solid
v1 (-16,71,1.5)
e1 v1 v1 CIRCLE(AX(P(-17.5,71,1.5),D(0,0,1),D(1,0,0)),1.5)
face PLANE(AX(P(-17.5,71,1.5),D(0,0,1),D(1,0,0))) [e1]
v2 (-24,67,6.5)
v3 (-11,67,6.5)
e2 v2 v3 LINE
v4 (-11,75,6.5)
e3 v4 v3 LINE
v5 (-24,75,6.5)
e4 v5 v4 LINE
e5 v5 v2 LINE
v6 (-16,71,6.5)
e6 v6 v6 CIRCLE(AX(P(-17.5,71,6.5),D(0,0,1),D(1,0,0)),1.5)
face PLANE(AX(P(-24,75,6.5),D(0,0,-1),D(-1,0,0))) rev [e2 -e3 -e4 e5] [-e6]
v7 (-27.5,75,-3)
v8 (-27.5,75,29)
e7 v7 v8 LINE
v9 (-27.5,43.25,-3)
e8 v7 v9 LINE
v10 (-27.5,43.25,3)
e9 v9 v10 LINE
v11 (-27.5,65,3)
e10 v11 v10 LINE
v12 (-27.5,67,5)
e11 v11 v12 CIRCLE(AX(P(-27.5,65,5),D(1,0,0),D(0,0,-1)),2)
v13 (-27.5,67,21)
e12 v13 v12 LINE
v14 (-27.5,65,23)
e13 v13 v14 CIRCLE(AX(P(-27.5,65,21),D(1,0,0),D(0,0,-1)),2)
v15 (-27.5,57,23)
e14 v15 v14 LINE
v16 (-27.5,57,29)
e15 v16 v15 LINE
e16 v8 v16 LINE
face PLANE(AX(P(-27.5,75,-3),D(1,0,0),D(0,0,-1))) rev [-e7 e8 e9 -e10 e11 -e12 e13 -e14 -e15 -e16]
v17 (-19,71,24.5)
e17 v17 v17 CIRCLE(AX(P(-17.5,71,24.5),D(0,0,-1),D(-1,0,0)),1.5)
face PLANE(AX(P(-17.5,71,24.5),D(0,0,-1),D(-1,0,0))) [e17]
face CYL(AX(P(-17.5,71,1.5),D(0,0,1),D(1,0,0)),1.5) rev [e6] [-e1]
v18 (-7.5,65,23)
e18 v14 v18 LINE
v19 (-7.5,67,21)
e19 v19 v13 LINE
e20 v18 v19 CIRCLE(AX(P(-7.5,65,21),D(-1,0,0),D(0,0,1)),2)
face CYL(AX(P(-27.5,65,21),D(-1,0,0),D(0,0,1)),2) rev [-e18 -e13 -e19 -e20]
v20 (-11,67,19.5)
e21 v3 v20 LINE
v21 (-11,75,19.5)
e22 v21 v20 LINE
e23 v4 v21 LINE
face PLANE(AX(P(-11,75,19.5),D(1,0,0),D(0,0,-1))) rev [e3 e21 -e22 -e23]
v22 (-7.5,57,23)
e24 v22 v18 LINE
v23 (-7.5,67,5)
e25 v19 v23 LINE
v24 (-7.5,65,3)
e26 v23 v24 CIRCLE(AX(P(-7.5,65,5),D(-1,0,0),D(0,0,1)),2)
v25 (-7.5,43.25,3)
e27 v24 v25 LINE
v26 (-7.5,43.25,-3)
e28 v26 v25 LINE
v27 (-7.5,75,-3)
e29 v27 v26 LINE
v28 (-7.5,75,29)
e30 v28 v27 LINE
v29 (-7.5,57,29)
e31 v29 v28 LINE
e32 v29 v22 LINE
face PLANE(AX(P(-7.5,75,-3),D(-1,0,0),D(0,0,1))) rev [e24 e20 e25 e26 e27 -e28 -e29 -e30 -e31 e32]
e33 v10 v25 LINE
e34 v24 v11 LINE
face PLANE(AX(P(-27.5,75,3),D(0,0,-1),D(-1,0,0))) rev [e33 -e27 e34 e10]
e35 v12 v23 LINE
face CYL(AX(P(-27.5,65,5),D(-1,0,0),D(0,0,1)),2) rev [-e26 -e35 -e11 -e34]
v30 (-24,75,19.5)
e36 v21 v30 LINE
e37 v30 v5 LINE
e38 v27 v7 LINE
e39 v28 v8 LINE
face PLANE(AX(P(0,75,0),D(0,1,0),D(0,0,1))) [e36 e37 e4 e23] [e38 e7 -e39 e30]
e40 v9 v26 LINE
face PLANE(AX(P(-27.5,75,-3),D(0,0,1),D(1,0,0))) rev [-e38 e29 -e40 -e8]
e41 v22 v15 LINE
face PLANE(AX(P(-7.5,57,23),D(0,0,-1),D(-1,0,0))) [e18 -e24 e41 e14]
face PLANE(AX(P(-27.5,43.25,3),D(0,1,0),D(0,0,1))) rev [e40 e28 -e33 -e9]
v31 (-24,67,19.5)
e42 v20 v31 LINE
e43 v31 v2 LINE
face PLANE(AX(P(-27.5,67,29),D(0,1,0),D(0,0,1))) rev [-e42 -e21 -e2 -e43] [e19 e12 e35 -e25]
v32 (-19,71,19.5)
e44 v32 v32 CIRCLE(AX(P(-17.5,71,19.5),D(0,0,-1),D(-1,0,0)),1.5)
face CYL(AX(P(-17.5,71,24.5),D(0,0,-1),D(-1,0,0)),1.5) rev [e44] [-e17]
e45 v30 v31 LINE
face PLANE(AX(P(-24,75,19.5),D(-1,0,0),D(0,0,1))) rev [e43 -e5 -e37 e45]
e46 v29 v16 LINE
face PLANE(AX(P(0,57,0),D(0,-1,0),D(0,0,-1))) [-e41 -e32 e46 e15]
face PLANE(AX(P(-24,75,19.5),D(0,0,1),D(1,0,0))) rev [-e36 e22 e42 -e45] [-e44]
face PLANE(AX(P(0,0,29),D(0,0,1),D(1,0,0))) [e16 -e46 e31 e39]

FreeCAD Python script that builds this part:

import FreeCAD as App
import Part
import Sketcher
Q = App.Units.Quantity


def edges_at(feature, points):
    """Names of the edges that pass closest to the given points."""
    edges = feature.Shape.Edges
    near = lambda p: min(range(len(edges)), key=lambda i: edges[i].distToShape(Part.Vertex(*p))[0])
    return sorted({f"Edge{near(p) + 1}" for p in points})

doc = App.newDocument("Part")
body = doc.addObject("PartDesign::Body", "Body")

sketch1 = doc.addObject("Sketcher::SketchObject", "Sketch")
body.addObject(sketch1)
sketch1.AttachmentSupport = (doc.XZ_Plane, [""])
sketch1.MapMode = "FlatFace"
sketch1.addGeometry(Part.LineSegment(App.Vector(-27.5, -3, 0), App.Vector(-27.5, 3, 0)), False)
sketch1.addGeometry(Part.LineSegment(App.Vector(-27.5, 3, 0), App.Vector(-7.5, 3, 0)), False)
sketch1.addGeometry(Part.LineSegment(App.Vector(-7.5, 3, 0), App.Vector(-7.5, -3, 0)), False)
sketch1.addGeometry(Part.LineSegment(App.Vector(-7.5, -3, 0), App.Vector(-27.5, -3, 0)), False)
sketch1.addConstraint(Sketcher.Constraint("Coincident", 0, 2, 1, 1))
sketch1.addConstraint(Sketcher.Constraint("Coincident", 1, 2, 2, 1))
sketch1.addConstraint(Sketcher.Constraint("Coincident", 2, 2, 3, 1))
sketch1.addConstraint(Sketcher.Constraint("Coincident", 3, 2, 0, 1))
sketch1.addConstraint(Sketcher.Constraint("Vertical", 0))
sketch1.addConstraint(Sketcher.Constraint("Horizontal", 1))
sketch1.addConstraint(Sketcher.Constraint("Vertical", 2))
sketch1.addConstraint(Sketcher.Constraint("Horizontal", 3))
sketch1.addConstraint(Sketcher.Constraint("DistanceX", 1, 1, 1, 2, Q("20 mm")))
sketch1.addConstraint(Sketcher.Constraint("DistanceY", 0, 1, 0, 2, Q("6 mm")))
sketch1.addConstraint(Sketcher.Constraint("DistanceY", -1, 1, 0, 2, Q("3 mm")))
sketch1.addConstraint(Sketcher.Constraint("DistanceX", 0, 2, -1, 1, Q("27.5 mm")))
pad1 = doc.addObject("PartDesign::Pad", "Pad")
body.addObject(pad1)
pad1.Profile = sketch1
pad1.Length = 75
pad1.Reversed = True

sketch2 = doc.addObject("Sketcher::SketchObject", "Sketch001")
body.addObject(sketch2)
sketch2.AttachmentSupport = (doc.XY_Plane, [""])
sketch2.MapMode = "FlatFace"
sketch2.AttachmentOffset = App.Placement(App.Vector(0, 0, 3), App.Rotation())
sketch2.addGeometry(Part.LineSegment(App.Vector(-27.5, 75, 0), App.Vector(-27.5, 67, 0)), False)
sketch2.addGeometry(Part.LineSegment(App.Vector(-27.5, 67, 0), App.Vector(-7.5, 67, 0)), False)
sketch2.addGeometry(Part.LineSegment(App.Vector(-7.5, 67, 0), App.Vector(-7.5, 75, 0)), False)
sketch2.addGeometry(Part.LineSegment(App.Vector(-7.5, 75, 0), App.Vector(-27.5, 75, 0)), False)
sketch2.addConstraint(Sketcher.Constraint("Coincident", 0, 2, 1, 1))
sketch2.addConstraint(Sketcher.Constraint("Coincident", 1, 2, 2, 1))
sketch2.addConstraint(Sketcher.Constraint("Coincident", 2, 2, 3, 1))
sketch2.addConstraint(Sketcher.Constraint("Coincident", 3, 2, 0, 1))
sketch2.addConstraint(Sketcher.Constraint("Vertical", 0))
sketch2.addConstraint(Sketcher.Constraint("Horizontal", 1))
sketch2.addConstraint(Sketcher.Constraint("Vertical", 2))
sketch2.addConstraint(Sketcher.Constraint("Horizontal", 3))
sketch2.addConstraint(Sketcher.Constraint("DistanceX", 1, 1, 1, 2, Q("20 mm")))
sketch2.addConstraint(Sketcher.Constraint("DistanceY", 0, 2, 0, 1, Q("8 mm")))
sketch2.addConstraint(Sketcher.Constraint("DistanceY", -1, 1, 0, 2, Q("67 mm")))
sketch2.addConstraint(Sketcher.Constraint("DistanceX", 0, 2, -1, 1, Q("27.5 mm")))
pad2 = doc.addObject("PartDesign::Pad", "Pad001")
body.addObject(pad2)
pad2.Profile = sketch2
pad2.Length = 26

sketch3 = doc.addObject("Sketcher::SketchObject", "Sketch002")
body.addObject(sketch3)
sketch3.AttachmentSupport = (doc.XZ_Plane, [""])
sketch3.MapMode = "FlatFace"
sketch3.AttachmentOffset = App.Placement(App.Vector(0, 0, -67), App.Rotation())
sketch3.addGeometry(Part.LineSegment(App.Vector(-27.5, 29, 0), App.Vector(-27.5, 23, 0)), False)
sketch3.addGeometry(Part.LineSegment(App.Vector(-27.5, 23, 0), App.Vector(-7.5, 23, 0)), False)
sketch3.addGeometry(Part.LineSegment(App.Vector(-7.5, 23, 0), App.Vector(-7.5, 29, 0)), False)
sketch3.addGeometry(Part.LineSegment(App.Vector(-7.5, 29, 0), App.Vector(-27.5, 29, 0)), False)
sketch3.addConstraint(Sketcher.Constraint("Coincident", 0, 2, 1, 1))
sketch3.addConstraint(Sketcher.Constraint("Coincident", 1, 2, 2, 1))
sketch3.addConstraint(Sketcher.Constraint("Coincident", 2, 2, 3, 1))
sketch3.addConstraint(Sketcher.Constraint("Coincident", 3, 2, 0, 1))
sketch3.addConstraint(Sketcher.Constraint("Vertical", 0))
sketch3.addConstraint(Sketcher.Constraint("Horizontal", 1))
sketch3.addConstraint(Sketcher.Constraint("Vertical", 2))
sketch3.addConstraint(Sketcher.Constraint("Horizontal", 3))
sketch3.addConstraint(Sketcher.Constraint("DistanceX", 1, 1, 1, 2, Q("20 mm")))
sketch3.addConstraint(Sketcher.Constraint("DistanceY", 0, 2, 0, 1, Q("6 mm")))
sketch3.addConstraint(Sketcher.Constraint("DistanceY", -1, 1, 0, 2, Q("23 mm")))
sketch3.addConstraint(Sketcher.Constraint("DistanceX", 0, 2, -1, 1, Q("27.5 mm")))
pad3 = doc.addObject("PartDesign::Pad", "Pad002")
body.addObject(pad3)
pad3.Profile = sketch3
pad3.Length = 10

sketch4 = doc.addObject("Sketcher::SketchObject", "Sketch003")
body.addObject(sketch4)
sketch4.AttachmentSupport = (doc.XZ_Plane, [""])
sketch4.MapMode = "FlatFace"
sketch4.AttachmentOffset = App.Placement(App.Vector(0, 0, -67), App.Rotation())
sketch4.addGeometry(Part.LineSegment(App.Vector(-24, 19.5, 0), App.Vector(-24, 6.5, 0)), False)
sketch4.addGeometry(Part.LineSegment(App.Vector(-24, 6.5, 0), App.Vector(-11, 6.5, 0)), False)
sketch4.addGeometry(Part.LineSegment(App.Vector(-11, 6.5, 0), App.Vector(-11, 19.5, 0)), False)
sketch4.addGeometry(Part.LineSegment(App.Vector(-11, 19.5, 0), App.Vector(-24, 19.5, 0)), False)
sketch4.addConstraint(Sketcher.Constraint("Coincident", 0, 2, 1, 1))
sketch4.addConstraint(Sketcher.Constraint("Coincident", 1, 2, 2, 1))
sketch4.addConstraint(Sketcher.Constraint("Coincident", 2, 2, 3, 1))
sketch4.addConstraint(Sketcher.Constraint("Coincident", 3, 2, 0, 1))
sketch4.addConstraint(Sketcher.Constraint("Vertical", 0))
sketch4.addConstraint(Sketcher.Constraint("Horizontal", 1))
sketch4.addConstraint(Sketcher.Constraint("Vertical", 2))
sketch4.addConstraint(Sketcher.Constraint("Horizontal", 3))
sketch4.addConstraint(Sketcher.Constraint("Equal", 3, 0))
sketch4.addConstraint(Sketcher.Constraint("DistanceX", 1, 1, 1, 2, Q("13 mm")))
sketch4.addConstraint(Sketcher.Constraint("DistanceX", 0, 2, -1, 1, Q("24 mm")))
sketch4.addConstraint(Sketcher.Constraint("DistanceY", -1, 1, 0, 2, Q("6.5 mm")))
pocket1 = doc.addObject("PartDesign::Pocket", "Pocket")
body.addObject(pocket1)
pocket1.Profile = sketch4
pocket1.Type = "ThroughAll"

sketch5 = doc.addObject("Sketcher::SketchObject", "Sketch004")
body.addObject(sketch5)
sketch5.AttachmentSupport = (doc.XY_Plane, [""])
sketch5.MapMode = "FlatFace"
sketch5.AttachmentOffset = App.Placement(App.Vector(0, 0, 6.5), App.Rotation())
sketch5.addGeometry(Part.Circle(App.Vector(-17.5, 71, 0), App.Vector(0, 0, 1), 1.5), False)
sketch5.addConstraint(Sketcher.Constraint("Diameter", 0, Q("3 mm")))
sketch5.addConstraint(Sketcher.Constraint("DistanceY", -1, 1, 0, 3, Q("71 mm")))
sketch5.addConstraint(Sketcher.Constraint("DistanceX", 0, 3, -1, 1, Q("17.5 mm")))
pocket2 = doc.addObject("PartDesign::Pocket", "Pocket001")
body.addObject(pocket2)
pocket2.Profile = sketch5
pocket2.Length = 5

sketch6 = doc.addObject("Sketcher::SketchObject", "Sketch005")
body.addObject(sketch6)
sketch6.AttachmentSupport = (doc.XY_Plane, [""])
sketch6.MapMode = "FlatFace"
sketch6.AttachmentOffset = App.Placement(App.Vector(0, 0, 24.5), App.Rotation())
sketch6.addGeometry(Part.Circle(App.Vector(-17.5, 71, 0), App.Vector(0, 0, 1), 1.5), False)
sketch6.addConstraint(Sketcher.Constraint("Diameter", 0, Q("3 mm")))
sketch6.addConstraint(Sketcher.Constraint("DistanceY", -1, 1, 0, 3, Q("71 mm")))
sketch6.addConstraint(Sketcher.Constraint("DistanceX", 0, 3, -1, 1, Q("17.5 mm")))
pocket3 = doc.addObject("PartDesign::Pocket", "Pocket002")
body.addObject(pocket3)
pocket3.Profile = sketch6
pocket3.Length = 5
doc.recompute()

fillet = doc.addObject("PartDesign::Fillet", "Fillet")
body.addObject(fillet)
fillet.Base = (pocket3, edges_at(pocket3, [(-17.5, 67, 3), (-17.5, 67, 23)]))
fillet.Radius = 2

sketch7 = doc.addObject("Sketcher::SketchObject", "Sketch006")
body.addObject(sketch7)
sketch7.AttachmentSupport = (doc.YZ_Plane, [""])
sketch7.MapMode = "FlatFace"
sketch7.AttachmentOffset = App.Placement(App.Vector(0, 0, -7.5), App.Rotation())
sketch7.addGeometry(Part.LineSegment(App.Vector(43.25, 3, 0), App.Vector(-0.800588, 3, 0)), False)
sketch7.addGeometry(Part.LineSegment(App.Vector(-0.800588, 3, 0), App.Vector(-0.800588, -3, 0)), False)
sketch7.addGeometry(Part.LineSegment(App.Vector(-0.800588, -3, 0), App.Vector(43.25, -3, 0)), False)
sketch7.addGeometry(Part.LineSegment(App.Vector(43.25, -3, 0), App.Vector(43.25, 3, 0)), False)
sketch7.addConstraint(Sketcher.Constraint("Coincident", 0, 2, 1, 1))
sketch7.addConstraint(Sketcher.Constraint("Coincident", 1, 2, 2, 1))
sketch7.addConstraint(Sketcher.Constraint("Coincident", 2, 2, 3, 1))
sketch7.addConstraint(Sketcher.Constraint("Coincident", 3, 2, 0, 1))
sketch7.addConstraint(Sketcher.Constraint("Horizontal", 0))
sketch7.addConstraint(Sketcher.Constraint("Vertical", 1))
sketch7.addConstraint(Sketcher.Constraint("Horizontal", 2))
sketch7.addConstraint(Sketcher.Constraint("Vertical", 3))
sketch7.addConstraint(Sketcher.Constraint("DistanceY", 1, 2, 1, 1, Q("6 mm")))
sketch7.addConstraint(Sketcher.Constraint("DistanceY", -1, 1, 0, 2, Q("3 mm")))
sketch7.addConstraint(Sketcher.Constraint("DistanceX", -1, 1, 2, 2, Q("43.25 mm")))
sketch7.addConstraint(Sketcher.Constraint("DistanceX", 0, 2, 0, 1, Q("44.050588 mm")))
pocket4 = doc.addObject("PartDesign::Pocket", "Pocket003")
body.addObject(pocket4)
pocket4.Profile = sketch7
pocket4.Length = 20

doc.recompute()
